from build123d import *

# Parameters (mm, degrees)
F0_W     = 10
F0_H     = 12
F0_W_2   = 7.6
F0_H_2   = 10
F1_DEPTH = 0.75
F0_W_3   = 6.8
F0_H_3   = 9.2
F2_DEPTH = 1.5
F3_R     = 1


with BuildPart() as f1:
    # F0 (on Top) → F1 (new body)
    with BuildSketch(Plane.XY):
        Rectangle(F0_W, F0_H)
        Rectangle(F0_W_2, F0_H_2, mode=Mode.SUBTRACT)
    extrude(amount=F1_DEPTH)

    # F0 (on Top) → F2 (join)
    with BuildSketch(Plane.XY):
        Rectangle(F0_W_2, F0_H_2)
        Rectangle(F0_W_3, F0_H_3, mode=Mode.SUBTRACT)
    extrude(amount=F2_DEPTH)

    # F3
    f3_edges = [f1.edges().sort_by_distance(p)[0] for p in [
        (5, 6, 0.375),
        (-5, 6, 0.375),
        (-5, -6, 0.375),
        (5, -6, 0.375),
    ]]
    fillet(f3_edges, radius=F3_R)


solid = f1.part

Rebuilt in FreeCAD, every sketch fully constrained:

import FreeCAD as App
import Part
import Sketcher
from FreeCAD import Vector


def edges_at(feature, points):
    """Names of the edges that pass closest to the given points."""
    edges = feature.Shape.Edges
    near = lambda p: min(range(len(edges)), key=lambda i: edges[i].distToShape(Part.Vertex(*p))[0])
    return sorted({f"Edge{near(p) + 1}" for p in points})

doc = App.newDocument("Part")
body = doc.addObject("PartDesign::Body", "Body")

# Sketch on XY plane
sketch1 = doc.addObject("Sketcher::SketchObject", "Sketch")
body.addObject(sketch1)
sketch1.AttachmentSupport = (doc.XY_Plane, [""])
sketch1.MapMode = "FlatFace"
sketch1.addGeometry([
    Part.LineSegment(Vector(-5, 6, 0), Vector(-5, -6, 0)),  # 0
    Part.LineSegment(Vector(-5, -6, 0), Vector(5, -6, 0)),  # 1
    Part.LineSegment(Vector(5, -6, 0), Vector(5, 6, 0)),  # 2
    Part.LineSegment(Vector(5, 6, 0), Vector(-5, 6, 0)),  # 3
    Part.LineSegment(Vector(4, -5, 0), Vector(-4, -5, 0)),  # 4
    Part.LineSegment(Vector(-4, -5, 0), Vector(-4, 5, 0)),  # 5
    Part.LineSegment(Vector(-4, 5, 0), Vector(4, 5, 0)),  # 6
    Part.LineSegment(Vector(4, 5, 0), Vector(4, -5, 0)),  # 7
], False)
sketch1.addConstraint([
    Sketcher.Constraint("Coincident", 0, 2, 1, 1),
    Sketcher.Constraint("Coincident", 1, 2, 2, 1),
    Sketcher.Constraint("Coincident", 2, 2, 3, 1),
    Sketcher.Constraint("Coincident", 3, 2, 0, 1),
    Sketcher.Constraint("Coincident", 4, 2, 5, 1),
    Sketcher.Constraint("Coincident", 5, 2, 6, 1),
    Sketcher.Constraint("Coincident", 6, 2, 7, 1),
    Sketcher.Constraint("Coincident", 7, 2, 4, 1),
    Sketcher.Constraint("Vertical", 0),
    Sketcher.Constraint("Horizontal", 1),
    Sketcher.Constraint("Vertical", 2),
    Sketcher.Constraint("Horizontal", 3),
    Sketcher.Constraint("Horizontal", 4),
    Sketcher.Constraint("Vertical", 5),
    Sketcher.Constraint("Horizontal", 6),
    Sketcher.Constraint("Vertical", 7),
    Sketcher.Constraint("Symmetric", 0, 2, 2, 2, -1, 1),
    Sketcher.Constraint("Symmetric", 4, 2, 6, 2, -1, 1),
    Sketcher.Constraint("Equal", 3, 5),
    Sketcher.Constraint("DistanceX", 1, 1, 1, 2, 10.0),
    Sketcher.Constraint("DistanceY", 0, 2, 0, 1, 12.0),
    Sketcher.Constraint("DistanceX", 4, 2, 4, 1, 7.6),
])
pad1 = doc.addObject("PartDesign::Pad", "Pad")
body.addObject(pad1)
pad1.Profile = sketch1
pad1.Length = 0.75

# Sketch on XY plane
sketch2 = doc.addObject("Sketcher::SketchObject", "Sketch001")
body.addObject(sketch2)
sketch2.AttachmentSupport = (doc.XY_Plane, [""])
sketch2.MapMode = "FlatFace"
sketch2.addGeometry([
    Part.LineSegment(Vector(-4, 5, 0), Vector(-4, -5, 0)),  # 0
    Part.LineSegment(Vector(-4, -5, 0), Vector(4, -5, 0)),  # 1
    Part.LineSegment(Vector(4, -5, 0), Vector(4, 5, 0)),  # 2
    Part.LineSegment(Vector(4, 5, 0), Vector(-4, 5, 0)),  # 3
    Part.LineSegment(Vector(3, -5, 0), Vector(-3, -5, 0)),  # 4
    Part.LineSegment(Vector(-3, -5, 0), Vector(-3, 5, 0)),  # 5
    Part.LineSegment(Vector(-3, 5, 0), Vector(3, 5, 0)),  # 6
    Part.LineSegment(Vector(3, 5, 0), Vector(3, -5, 0)),  # 7
], False)
sketch2.addConstraint([
    Sketcher.Constraint("Coincident", 0, 2, 1, 1),
    Sketcher.Constraint("Coincident", 1, 2, 2, 1),
    Sketcher.Constraint("Coincident", 2, 2, 3, 1),
    Sketcher.Constraint("Coincident", 3, 2, 0, 1),
    Sketcher.Constraint("Coincident", 4, 2, 5, 1),
    Sketcher.Constraint("Coincident", 5, 2, 6, 1),
    Sketcher.Constraint("Coincident", 6, 2, 7, 1),
    Sketcher.Constraint("Coincident", 7, 2, 4, 1),
    Sketcher.Constraint("Vertical", 0),
    Sketcher.Constraint("Horizontal", 1),
    Sketcher.Constraint("Vertical", 2),
    Sketcher.Constraint("Horizontal", 3),
    Sketcher.Constraint("Horizontal", 4),
    Sketcher.Constraint("Vertical", 5),
    Sketcher.Constraint("Horizontal", 6),
    Sketcher.Constraint("Vertical", 7),
    Sketcher.Constraint("Symmetric", 0, 2, 2, 2, -1, 1),
    Sketcher.Constraint("Symmetric", 4, 2, 6, 2, -1, 1),
    Sketcher.Constraint("DistanceY", 0, 2, 0, 1, 10.0),
    Sketcher.Constraint("DistanceX", 1, 1, 1, 2, 7.6),
    Sketcher.Constraint("DistanceX", 4, 2, 4, 1, 6.8),
    Sketcher.Constraint("DistanceY", 5, 1, 5, 2, 9.2),
])
pad2 = doc.addObject("PartDesign::Pad", "Pad001")
body.addObject(pad2)
pad2.Profile = sketch2
pad2.Length = 1.5
doc.recompute()

fillet = doc.addObject("PartDesign::Fillet", "Fillet")
body.addObject(fillet)
fillet.Base = (pad2, edges_at(pad2, [
    (5, 6, 0.375),
    (-5, 6, 0.375),
    (-5, -6, 0.375),
    (5, -6, 0.375),
]))
fillet.Radius = 1

doc.recompute()
